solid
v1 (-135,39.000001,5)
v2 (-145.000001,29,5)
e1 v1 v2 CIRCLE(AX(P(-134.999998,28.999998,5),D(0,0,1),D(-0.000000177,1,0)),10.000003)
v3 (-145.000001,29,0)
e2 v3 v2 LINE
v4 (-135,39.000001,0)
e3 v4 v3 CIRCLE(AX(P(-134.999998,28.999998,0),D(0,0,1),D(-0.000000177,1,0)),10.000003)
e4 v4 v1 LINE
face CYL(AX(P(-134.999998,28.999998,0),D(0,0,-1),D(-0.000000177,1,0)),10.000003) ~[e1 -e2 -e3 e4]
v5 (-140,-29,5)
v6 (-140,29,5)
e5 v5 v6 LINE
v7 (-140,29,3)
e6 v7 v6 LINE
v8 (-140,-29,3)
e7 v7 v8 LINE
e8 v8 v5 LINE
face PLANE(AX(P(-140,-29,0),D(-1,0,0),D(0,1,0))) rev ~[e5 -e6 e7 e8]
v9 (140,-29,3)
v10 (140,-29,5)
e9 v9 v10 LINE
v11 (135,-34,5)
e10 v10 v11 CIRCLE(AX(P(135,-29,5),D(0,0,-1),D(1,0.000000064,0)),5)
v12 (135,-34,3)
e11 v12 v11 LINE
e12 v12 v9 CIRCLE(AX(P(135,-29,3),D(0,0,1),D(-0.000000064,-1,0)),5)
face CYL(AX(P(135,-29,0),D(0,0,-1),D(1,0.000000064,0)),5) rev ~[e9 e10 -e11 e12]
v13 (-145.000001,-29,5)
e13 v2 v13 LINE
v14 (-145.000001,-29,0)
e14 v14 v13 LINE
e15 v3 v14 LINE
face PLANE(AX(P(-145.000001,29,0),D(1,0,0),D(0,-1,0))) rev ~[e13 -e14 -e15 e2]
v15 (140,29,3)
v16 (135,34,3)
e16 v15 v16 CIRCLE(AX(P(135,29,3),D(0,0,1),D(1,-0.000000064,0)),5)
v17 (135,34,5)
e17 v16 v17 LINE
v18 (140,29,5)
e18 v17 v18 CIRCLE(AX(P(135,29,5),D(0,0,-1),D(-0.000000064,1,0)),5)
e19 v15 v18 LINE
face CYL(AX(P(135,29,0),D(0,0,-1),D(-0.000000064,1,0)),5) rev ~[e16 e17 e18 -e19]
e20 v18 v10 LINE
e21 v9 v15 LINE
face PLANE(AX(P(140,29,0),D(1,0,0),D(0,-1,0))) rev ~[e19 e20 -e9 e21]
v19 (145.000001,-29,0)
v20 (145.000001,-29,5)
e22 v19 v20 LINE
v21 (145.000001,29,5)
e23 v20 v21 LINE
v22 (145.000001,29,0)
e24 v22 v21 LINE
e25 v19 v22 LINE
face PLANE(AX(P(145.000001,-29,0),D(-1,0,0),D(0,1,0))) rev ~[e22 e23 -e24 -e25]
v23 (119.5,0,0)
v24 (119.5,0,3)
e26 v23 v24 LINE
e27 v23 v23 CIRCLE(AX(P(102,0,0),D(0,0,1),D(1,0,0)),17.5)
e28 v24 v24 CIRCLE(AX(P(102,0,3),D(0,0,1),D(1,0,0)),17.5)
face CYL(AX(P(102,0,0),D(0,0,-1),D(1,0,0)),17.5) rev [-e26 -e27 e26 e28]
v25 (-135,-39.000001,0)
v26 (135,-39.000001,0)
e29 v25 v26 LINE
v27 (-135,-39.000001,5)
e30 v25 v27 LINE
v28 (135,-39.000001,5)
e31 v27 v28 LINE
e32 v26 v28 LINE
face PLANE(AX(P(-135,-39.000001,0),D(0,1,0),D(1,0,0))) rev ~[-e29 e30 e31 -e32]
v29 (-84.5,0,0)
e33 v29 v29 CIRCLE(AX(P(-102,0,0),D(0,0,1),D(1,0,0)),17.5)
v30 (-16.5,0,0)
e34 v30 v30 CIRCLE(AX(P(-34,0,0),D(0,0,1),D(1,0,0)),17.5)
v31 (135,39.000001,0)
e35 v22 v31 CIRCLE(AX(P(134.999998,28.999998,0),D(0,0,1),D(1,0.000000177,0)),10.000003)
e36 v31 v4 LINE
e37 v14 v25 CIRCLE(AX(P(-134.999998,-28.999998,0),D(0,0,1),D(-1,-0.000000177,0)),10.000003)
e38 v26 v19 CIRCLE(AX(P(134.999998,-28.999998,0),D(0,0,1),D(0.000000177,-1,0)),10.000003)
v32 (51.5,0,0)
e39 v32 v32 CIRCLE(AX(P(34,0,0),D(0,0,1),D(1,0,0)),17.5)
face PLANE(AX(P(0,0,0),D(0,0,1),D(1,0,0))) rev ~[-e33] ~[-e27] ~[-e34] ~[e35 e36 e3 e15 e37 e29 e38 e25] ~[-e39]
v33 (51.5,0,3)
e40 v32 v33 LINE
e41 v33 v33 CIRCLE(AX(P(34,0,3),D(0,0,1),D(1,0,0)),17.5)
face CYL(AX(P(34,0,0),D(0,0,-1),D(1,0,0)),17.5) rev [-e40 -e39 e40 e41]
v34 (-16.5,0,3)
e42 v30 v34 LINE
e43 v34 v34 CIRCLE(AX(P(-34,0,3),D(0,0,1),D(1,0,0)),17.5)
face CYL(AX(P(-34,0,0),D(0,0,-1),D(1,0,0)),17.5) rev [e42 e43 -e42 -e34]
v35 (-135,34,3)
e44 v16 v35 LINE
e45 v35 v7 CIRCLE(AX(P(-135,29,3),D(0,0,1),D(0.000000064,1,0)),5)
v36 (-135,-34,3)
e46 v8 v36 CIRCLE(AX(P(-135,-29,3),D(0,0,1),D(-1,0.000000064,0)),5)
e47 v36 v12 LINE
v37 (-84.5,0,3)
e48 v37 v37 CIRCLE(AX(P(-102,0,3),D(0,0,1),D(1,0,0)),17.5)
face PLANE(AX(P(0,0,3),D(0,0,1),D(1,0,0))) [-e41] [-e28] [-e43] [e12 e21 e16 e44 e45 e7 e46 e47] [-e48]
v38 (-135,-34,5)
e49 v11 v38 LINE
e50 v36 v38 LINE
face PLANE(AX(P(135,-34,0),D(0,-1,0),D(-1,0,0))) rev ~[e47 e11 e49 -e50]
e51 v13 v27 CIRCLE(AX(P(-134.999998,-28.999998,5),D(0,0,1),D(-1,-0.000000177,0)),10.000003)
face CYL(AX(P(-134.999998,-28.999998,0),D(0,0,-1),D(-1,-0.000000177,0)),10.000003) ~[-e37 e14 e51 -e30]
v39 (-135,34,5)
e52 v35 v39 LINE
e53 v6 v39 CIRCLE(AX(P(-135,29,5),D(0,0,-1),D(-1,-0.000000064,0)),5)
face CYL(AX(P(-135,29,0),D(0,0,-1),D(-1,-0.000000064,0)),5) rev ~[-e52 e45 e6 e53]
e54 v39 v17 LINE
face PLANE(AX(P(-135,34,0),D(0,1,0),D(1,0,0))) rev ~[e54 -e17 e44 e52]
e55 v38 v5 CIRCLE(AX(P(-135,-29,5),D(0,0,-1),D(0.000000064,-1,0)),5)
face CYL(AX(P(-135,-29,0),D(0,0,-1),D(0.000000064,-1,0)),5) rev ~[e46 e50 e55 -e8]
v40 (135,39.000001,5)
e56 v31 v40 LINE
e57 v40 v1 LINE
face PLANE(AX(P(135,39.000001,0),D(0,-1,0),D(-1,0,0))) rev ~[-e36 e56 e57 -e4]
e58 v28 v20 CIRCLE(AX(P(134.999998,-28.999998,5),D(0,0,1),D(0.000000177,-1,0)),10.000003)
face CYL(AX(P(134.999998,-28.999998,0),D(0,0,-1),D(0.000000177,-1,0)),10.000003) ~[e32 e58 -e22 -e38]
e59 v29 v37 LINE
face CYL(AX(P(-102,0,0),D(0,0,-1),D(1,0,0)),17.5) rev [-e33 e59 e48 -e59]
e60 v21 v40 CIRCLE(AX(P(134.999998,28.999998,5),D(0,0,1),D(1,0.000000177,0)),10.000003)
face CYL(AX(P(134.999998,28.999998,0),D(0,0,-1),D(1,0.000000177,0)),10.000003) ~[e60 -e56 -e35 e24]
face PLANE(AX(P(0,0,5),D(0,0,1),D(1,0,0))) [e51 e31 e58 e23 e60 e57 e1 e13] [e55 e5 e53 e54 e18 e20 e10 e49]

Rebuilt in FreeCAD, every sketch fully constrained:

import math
import FreeCAD as App
import Part
import Sketcher
from FreeCAD import Vector
Q = App.Units.Quantity

doc = App.newDocument("Part")
body = doc.addObject("PartDesign::Body", "Body")

sketch1 = doc.addObject("Sketcher::SketchObject", "Sketch")
body.addObject(sketch1)
sketch1.AttachmentSupport = (doc.XY_Plane, [""])
sketch1.MapMode = "FlatFace"
sketch1.addGeometry(Part.LineSegment(Vector(-135, -34, 0), Vector(135, -34, 0)), False)
sketch1.addGeometry(Part.ArcOfCircle(Part.Circle(Vector(135, -29, 0), Vector(0, 0, 1), 5), math.radians(-90.000004), math.radians(0.000004)), False)
sketch1.addGeometry(Part.LineSegment(Vector(140, -29, 0), Vector(140, 29, 0)), False)
sketch1.addGeometry(Part.ArcOfCircle(Part.Circle(Vector(135, 29, 0), Vector(0, 0, 1), 5), math.radians(-0.000004), math.radians(90.000004)), False)
sketch1.addGeometry(Part.LineSegment(Vector(135, 34, 0), Vector(-135, 34, 0)), False)
sketch1.addGeometry(Part.ArcOfCircle(Part.Circle(Vector(-135, 29, 0), Vector(0, 0, 1), 5), math.radians(89.999996), math.radians(180.000004)), False)
sketch1.addGeometry(Part.LineSegment(Vector(-140, 29, 0), Vector(-140, -29, 0)), False)
sketch1.addGeometry(Part.ArcOfCircle(Part.Circle(Vector(-135, -29, 0), Vector(0, 0, 1), 5), math.radians(179.999996), math.radians(270.000004)), False)
sketch1.addGeometry(Part.Circle(Vector(-102, 0, 0), Vector(0, 0, 1), 17.5), False)
sketch1.addGeometry(Part.Circle(Vector(-34, 0, 0), Vector(0, 0, 1), 17.5), False)
sketch1.addGeometry(Part.Circle(Vector(34, 0, 0), Vector(0, 0, 1), 17.5), False)
sketch1.addGeometry(Part.Circle(Vector(102, 0, 0), Vector(0, 0, 1), 17.5), False)
sketch1.addConstraint(Sketcher.Constraint("Tangent", 0, 2, 1, 1))
sketch1.addConstraint(Sketcher.Constraint("Tangent", 1, 2, 2, 1))
sketch1.addConstraint(Sketcher.Constraint("Tangent", 2, 2, 3, 1))
sketch1.addConstraint(Sketcher.Constraint("Tangent", 3, 2, 4, 1))
sketch1.addConstraint(Sketcher.Constraint("Tangent", 4, 2, 5, 1))
sketch1.addConstraint(Sketcher.Constraint("Tangent", 5, 2, 6, 1))
sketch1.addConstraint(Sketcher.Constraint("Tangent", 6, 2, 7, 1))
sketch1.addConstraint(Sketcher.Constraint("Tangent", 7, 2, 0, 1))
sketch1.addConstraint(Sketcher.Constraint("Horizontal", 0))
sketch1.addConstraint(Sketcher.Constraint("Vertical", 2))
sketch1.addConstraint(Sketcher.Constraint("Horizontal", 4))
sketch1.addConstraint(Sketcher.Constraint("Vertical", 6))
sketch1.addConstraint(Sketcher.Constraint("Equal", 1, 3))
sketch1.addConstraint(Sketcher.Constraint("Equal", 3, 5))
sketch1.addConstraint(Sketcher.Constraint("Equal", 5, 7))
sketch1.addConstraint(Sketcher.Constraint("Equal", 8, 9))
sketch1.addConstraint(Sketcher.Constraint("Equal", 9, 10))
sketch1.addConstraint(Sketcher.Constraint("Equal", 10, 11))
sketch1.addConstraint(Sketcher.Constraint("Symmetric", 1, 3, 5, 3, -1, 1))
sketch1.addConstraint(Sketcher.Constraint("Symmetric", 9, 3, 10, 3, -1, 1))
sketch1.addConstraint(Sketcher.Constraint("Symmetric", 8, 3, 11, 3, -1, 1))
sketch1.addConstraint(Sketcher.Constraint("PointOnObject", 8, 3, -1))
sketch1.addConstraint(Sketcher.Constraint("PointOnObject", 9, 3, -1))
sketch1.addConstraint(Sketcher.Constraint("Diameter", 8, Q("35 mm")))
sketch1.addConstraint(Sketcher.Constraint("Radius", 1, Q("5 mm")))
sketch1.addConstraint(Sketcher.Constraint("DistanceX", 0, 1, 0, 2, Q("270 mm")))
sketch1.addConstraint(Sketcher.Constraint("DistanceY", 2, 1, 2, 2, Q("58 mm")))
sketch1.addConstraint(Sketcher.Constraint("DistanceX", 8, 3, -1, 1, Q("102 mm")))
sketch1.addConstraint(Sketcher.Constraint("DistanceX", 9, 3, -1, 1, Q("34 mm")))
pad1 = doc.addObject("PartDesign::Pad", "Pad")
body.addObject(pad1)
pad1.Profile = sketch1
pad1.Length = 3

sketch2 = doc.addObject("Sketcher::SketchObject", "Sketch001")
body.addObject(sketch2)
sketch2.AttachmentSupport = (doc.XY_Plane, [""])
sketch2.MapMode = "FlatFace"
sketch2.addGeometry(Part.LineSegment(Vector(-135, -39.000001, 0), Vector(135, -39.000001, 0)), False)
sketch2.addGeometry(Part.ArcOfCircle(Part.Circle(Vector(134.999998, -28.999998, 0), Vector(0, 0, 1), 10.000003), math.radians(-89.99999), math.radians(-0.00001)), False)
sketch2.addGeometry(Part.LineSegment(Vector(145.000001, -29, 0), Vector(145.000001, 29, 0)), False)
sketch2.addGeometry(Part.ArcOfCircle(Part.Circle(Vector(134.999998, 28.999998, 0), Vector(0, 0, 1), 10.000003), math.radians(0.00001), math.radians(89.99999)), False)
sketch2.addGeometry(Part.LineSegment(Vector(135, 39.000001, 0), Vector(-135, 39.000001, 0)), False)
sketch2.addGeometry(Part.ArcOfCircle(Part.Circle(Vector(-134.999998, 28.999998, 0), Vector(0, 0, 1), 10.000003), math.radians(90.00001), math.radians(179.99999)), False)
sketch2.addGeometry(Part.LineSegment(Vector(-145.000001, 29, 0), Vector(-145.000001, -29, 0)), False)
sketch2.addGeometry(Part.ArcOfCircle(Part.Circle(Vector(-134.999998, -28.999998, 0), Vector(0, 0, 1), 10.000003), math.radians(-179.99999), math.radians(-90.00001)), False)
sketch2.addGeometry(Part.LineSegment(Vector(140, 29, 0), Vector(140, -29, 0)), False)
sketch2.addGeometry(Part.ArcOfCircle(Part.Circle(Vector(135, -29, 0), Vector(0, 0, 1), 5), math.radians(-90.000004), math.radians(0.000004)), False)
sketch2.addGeometry(Part.LineSegment(Vector(135, -34, 0), Vector(-135, -34, 0)), False)
sketch2.addGeometry(Part.ArcOfCircle(Part.Circle(Vector(-135, -29, 0), Vector(0, 0, 1), 5), math.radians(179.999996), math.radians(270.000004)), False)
sketch2.addGeometry(Part.LineSegment(Vector(-140, -29, 0), Vector(-140, 29, 0)), False)
sketch2.addGeometry(Part.ArcOfCircle(Part.Circle(Vector(-135, 29, 0), Vector(0, 0, 1), 5), math.radians(89.999996), math.radians(180.000004)), False)
sketch2.addGeometry(Part.LineSegment(Vector(-135, 34, 0), Vector(135, 34, 0)), False)
sketch2.addGeometry(Part.ArcOfCircle(Part.Circle(Vector(135, 29, 0), Vector(0, 0, 1), 5), math.radians(-0.000004), math.radians(90.000004)), False)
sketch2.addConstraint(Sketcher.Constraint("Tangent", 0, 2, 1, 1))
sketch2.addConstraint(Sketcher.Constraint("Tangent", 1, 2, 2, 1))
sketch2.addConstraint(Sketcher.Constraint("Tangent", 2, 2, 3, 1))
sketch2.addConstraint(Sketcher.Constraint("Tangent", 3, 2, 4, 1))
sketch2.addConstraint(Sketcher.Constraint("Tangent", 4, 2, 5, 1))
sketch2.addConstraint(Sketcher.Constraint("Tangent", 5, 2, 6, 1))
sketch2.addConstraint(Sketcher.Constraint("Tangent", 6, 2, 7, 1))
sketch2.addConstraint(Sketcher.Constraint("Tangent", 7, 2, 0, 1))
sketch2.addConstraint(Sketcher.Constraint("Tangent", 8, 2, 9, 2))
sketch2.addConstraint(Sketcher.Constraint("Tangent", 9, 1, 10, 1))
sketch2.addConstraint(Sketcher.Constraint("Tangent", 10, 2, 11, 2))
sketch2.addConstraint(Sketcher.Constraint("Tangent", 11, 1, 12, 1))
sketch2.addConstraint(Sketcher.Constraint("Tangent", 12, 2, 13, 2))
sketch2.addConstraint(Sketcher.Constraint("Tangent", 13, 1, 14, 1))
sketch2.addConstraint(Sketcher.Constraint("Tangent", 14, 2, 15, 2))
sketch2.addConstraint(Sketcher.Constraint("Tangent", 15, 1, 8, 1))
sketch2.addConstraint(Sketcher.Constraint("Horizontal", 0))
sketch2.addConstraint(Sketcher.Constraint("Vertical", 2))
sketch2.addConstraint(Sketcher.Constraint("Horizontal", 4))
sketch2.addConstraint(Sketcher.Constraint("Vertical", 6))
sketch2.addConstraint(Sketcher.Constraint("Vertical", 8))
sketch2.addConstraint(Sketcher.Constraint("Horizontal", 10))
sketch2.addConstraint(Sketcher.Constraint("Vertical", 12))
sketch2.addConstraint(Sketcher.Constraint("Horizontal", 14))
sketch2.addConstraint(Sketcher.Constraint("Coincident", 9, 3, 1, 3))
sketch2.addConstraint(Sketcher.Constraint("Coincident", 11, 3, 7, 3))
sketch2.addConstraint(Sketcher.Constraint("Coincident", 13, 3, 5, 3))
sketch2.addConstraint(Sketcher.Constraint("Equal", 1, 3))
sketch2.addConstraint(Sketcher.Constraint("Equal", 3, 5))
sketch2.addConstraint(Sketcher.Constraint("Equal", 5, 7))
sketch2.addConstraint(Sketcher.Constraint("Equal", 13, 15))
sketch2.addConstraint(Sketcher.Constraint("Symmetric", 1, 3, 5, 3, -1, 1))
sketch2.addConstraint(Sketcher.Constraint("Radius", 9, Q("5 mm")))
sketch2.addConstraint(Sketcher.Constraint("DistanceX", 0, 1, 0, 2, Q("270 mm")))
sketch2.addConstraint(Sketcher.Constraint("DistanceY", 2, 1, 2, 2, Q("58 mm")))
sketch2.addConstraint(Sketcher.Constraint("DistanceY", 0, 2, -1, 1, Q("39.000001 mm")))
pad2 = doc.addObject("PartDesign::Pad", "Pad001")
body.addObject(pad2)
pad2.Profile = sketch2
pad2.Length = 5

doc.recompute()
